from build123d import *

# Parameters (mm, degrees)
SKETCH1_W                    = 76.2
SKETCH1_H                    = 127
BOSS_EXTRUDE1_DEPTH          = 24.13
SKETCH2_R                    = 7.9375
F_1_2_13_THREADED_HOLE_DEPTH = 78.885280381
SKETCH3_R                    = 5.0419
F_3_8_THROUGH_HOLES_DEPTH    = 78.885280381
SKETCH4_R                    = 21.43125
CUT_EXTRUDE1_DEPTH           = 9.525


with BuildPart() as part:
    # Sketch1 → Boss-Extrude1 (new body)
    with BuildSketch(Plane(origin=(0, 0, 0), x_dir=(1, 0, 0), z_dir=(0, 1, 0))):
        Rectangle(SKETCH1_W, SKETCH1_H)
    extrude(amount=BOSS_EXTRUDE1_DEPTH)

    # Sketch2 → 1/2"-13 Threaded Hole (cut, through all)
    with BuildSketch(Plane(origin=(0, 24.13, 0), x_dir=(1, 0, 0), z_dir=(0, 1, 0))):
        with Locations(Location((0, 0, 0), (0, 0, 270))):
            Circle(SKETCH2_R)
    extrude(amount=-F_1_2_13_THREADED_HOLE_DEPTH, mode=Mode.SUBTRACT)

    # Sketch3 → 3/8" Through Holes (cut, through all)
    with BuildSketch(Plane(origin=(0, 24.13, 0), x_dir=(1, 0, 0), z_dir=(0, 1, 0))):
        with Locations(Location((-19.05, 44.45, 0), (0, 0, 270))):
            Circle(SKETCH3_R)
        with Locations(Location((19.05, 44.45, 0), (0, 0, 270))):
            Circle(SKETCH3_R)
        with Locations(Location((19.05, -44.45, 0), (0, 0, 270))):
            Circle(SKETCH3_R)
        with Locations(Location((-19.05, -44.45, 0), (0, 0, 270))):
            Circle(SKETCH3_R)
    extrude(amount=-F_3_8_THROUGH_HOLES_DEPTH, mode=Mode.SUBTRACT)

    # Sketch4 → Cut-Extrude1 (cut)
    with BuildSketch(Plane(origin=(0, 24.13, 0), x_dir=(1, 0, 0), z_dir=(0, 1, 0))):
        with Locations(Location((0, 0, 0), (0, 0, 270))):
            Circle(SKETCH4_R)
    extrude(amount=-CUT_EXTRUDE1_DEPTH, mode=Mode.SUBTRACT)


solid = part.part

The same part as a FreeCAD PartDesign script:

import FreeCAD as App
import Part
import Sketcher
from FreeCAD import Vector
Q = App.Units.Quantity

doc = App.newDocument("Part")
body = doc.addObject("PartDesign::Body", "Body")

sketch1 = body.newObject("Sketcher::SketchObject", "Sketch")
sketch1.AttachmentSupport = (doc.getObject("XZ_Plane"), [""])
sketch1.MapMode = "FlatFace"
sketch1.addGeometry(Part.LineSegment(Vector(-38, -64, 0), Vector(-38, 64, 0)), False)
sketch1.addGeometry(Part.LineSegment(Vector(-38, 64, 0), Vector(38, 64, 0)), False)
sketch1.addGeometry(Part.LineSegment(Vector(38, 64, 0), Vector(38, -64, 0)), False)
sketch1.addGeometry(Part.LineSegment(Vector(38, -64, 0), Vector(-38, -64, 0)), False)
sketch1.addConstraint(Sketcher.Constraint("Coincident", 0, 2, 1, 1))
sketch1.addConstraint(Sketcher.Constraint("Coincident", 1, 2, 2, 1))
sketch1.addConstraint(Sketcher.Constraint("Coincident", 2, 2, 3, 1))
sketch1.addConstraint(Sketcher.Constraint("Coincident", 3, 2, 0, 1))
sketch1.addConstraint(Sketcher.Constraint("Vertical", 0))
sketch1.addConstraint(Sketcher.Constraint("Horizontal", 1))
sketch1.addConstraint(Sketcher.Constraint("Vertical", 2))
sketch1.addConstraint(Sketcher.Constraint("Horizontal", 3))
sketch1.addConstraint(Sketcher.Constraint("Symmetric", 0, 2, 2, 2, -1, 1))
sketch1.addConstraint(Sketcher.Constraint("DistanceX", 1, 1, 1, 2, Q("3 in")))
sketch1.addConstraint(Sketcher.Constraint("DistanceY", 0, 1, 0, 2, Q("5 in")))
pad1 = body.newObject("PartDesign::Pad", "Pad")
pad1.Profile = sketch1
pad1.Length = Q("0.95 in")
pad1.Reversed = True

sketch2 = body.newObject("Sketcher::SketchObject", "Sketch001")
sketch2.AttachmentSupport = (doc.getObject("XZ_Plane"), [""])
sketch2.MapMode = "FlatFace"
sketch2.AttachmentOffset = App.Placement(Vector(0, 0, -0.95 * 25.4), App.Rotation())
sketch2.addGeometry(Part.Circle(Vector(0, 0, 0), Vector(0, 0, 1), 8), False)
sketch2.addConstraint(Sketcher.Constraint("Coincident", 0, 3, -1, 1))
sketch2.addConstraint(Sketcher.Constraint("Diameter", 0, Q("0.625 in")))
pocket1 = body.newObject("PartDesign::Pocket", "Pocket")
pocket1.Profile = sketch2
pocket1.Type = "ThroughAll"
pocket1.Reversed = True

sketch3 = body.newObject("Sketcher::SketchObject", "Sketch002")
sketch3.AttachmentSupport = (doc.getObject("XZ_Plane"), [""])
sketch3.MapMode = "FlatFace"
sketch3.AttachmentOffset = App.Placement(Vector(0, 0, -0.95 * 25.4), App.Rotation())
sketch3.addGeometry(Part.Circle(Vector(-19, -44, 0), Vector(0, 0, 1), 5), False)
sketch3.addGeometry(Part.Circle(Vector(19, -44, 0), Vector(0, 0, 1), 5), False)
sketch3.addGeometry(Part.Circle(Vector(19, 44, 0), Vector(0, 0, 1), 5), False)
sketch3.addGeometry(Part.Circle(Vector(-19, 44, 0), Vector(0, 0, 1), 5), False)
sketch3.addConstraint(Sketcher.Constraint("Equal", 0, 1))
sketch3.addConstraint(Sketcher.Constraint("Equal", 1, 2))
sketch3.addConstraint(Sketcher.Constraint("Equal", 2, 3))
sketch3.addConstraint(Sketcher.Constraint("Symmetric", 0, 3, 2, 3, -1, 1))
sketch3.addConstraint(Sketcher.Constraint("Symmetric", 1, 3, 3, 3, -1, 1))
sketch3.addConstraint(Sketcher.Constraint("Symmetric", 0, 3, 1, 3, -2))
sketch3.addConstraint(Sketcher.Constraint("Diameter", 0, Q("0.397 in")))
sketch3.addConstraint(Sketcher.Constraint("DistanceX", 0, 3, 1, 3, Q("1.5 in")))
sketch3.addConstraint(Sketcher.Constraint("DistanceY", 1, 3, 2, 3, Q("3.5 in")))
pocket2 = body.newObject("PartDesign::Pocket", "Pocket001")
pocket2.Profile = sketch3
pocket2.Type = "ThroughAll"
pocket2.Reversed = True

sketch4 = body.newObject("Sketcher::SketchObject", "Sketch003")
sketch4.AttachmentSupport = (doc.getObject("XZ_Plane"), [""])
sketch4.MapMode = "FlatFace"
sketch4.AttachmentOffset = App.Placement(Vector(0, 0, -0.95 * 25.4), App.Rotation())
sketch4.addGeometry(Part.Circle(Vector(0, 0, 0), Vector(0, 0, 1), 21), False)
sketch4.addConstraint(Sketcher.Constraint("Coincident", 0, 3, -1, 1))
sketch4.addConstraint(Sketcher.Constraint("Diameter", 0, Q("1.6875 in")))
pocket3 = body.newObject("PartDesign::Pocket", "Pocket002")
pocket3.Profile = sketch4
pocket3.Length = Q("0.375 in")
pocket3.Reversed = True

doc.recompute()
